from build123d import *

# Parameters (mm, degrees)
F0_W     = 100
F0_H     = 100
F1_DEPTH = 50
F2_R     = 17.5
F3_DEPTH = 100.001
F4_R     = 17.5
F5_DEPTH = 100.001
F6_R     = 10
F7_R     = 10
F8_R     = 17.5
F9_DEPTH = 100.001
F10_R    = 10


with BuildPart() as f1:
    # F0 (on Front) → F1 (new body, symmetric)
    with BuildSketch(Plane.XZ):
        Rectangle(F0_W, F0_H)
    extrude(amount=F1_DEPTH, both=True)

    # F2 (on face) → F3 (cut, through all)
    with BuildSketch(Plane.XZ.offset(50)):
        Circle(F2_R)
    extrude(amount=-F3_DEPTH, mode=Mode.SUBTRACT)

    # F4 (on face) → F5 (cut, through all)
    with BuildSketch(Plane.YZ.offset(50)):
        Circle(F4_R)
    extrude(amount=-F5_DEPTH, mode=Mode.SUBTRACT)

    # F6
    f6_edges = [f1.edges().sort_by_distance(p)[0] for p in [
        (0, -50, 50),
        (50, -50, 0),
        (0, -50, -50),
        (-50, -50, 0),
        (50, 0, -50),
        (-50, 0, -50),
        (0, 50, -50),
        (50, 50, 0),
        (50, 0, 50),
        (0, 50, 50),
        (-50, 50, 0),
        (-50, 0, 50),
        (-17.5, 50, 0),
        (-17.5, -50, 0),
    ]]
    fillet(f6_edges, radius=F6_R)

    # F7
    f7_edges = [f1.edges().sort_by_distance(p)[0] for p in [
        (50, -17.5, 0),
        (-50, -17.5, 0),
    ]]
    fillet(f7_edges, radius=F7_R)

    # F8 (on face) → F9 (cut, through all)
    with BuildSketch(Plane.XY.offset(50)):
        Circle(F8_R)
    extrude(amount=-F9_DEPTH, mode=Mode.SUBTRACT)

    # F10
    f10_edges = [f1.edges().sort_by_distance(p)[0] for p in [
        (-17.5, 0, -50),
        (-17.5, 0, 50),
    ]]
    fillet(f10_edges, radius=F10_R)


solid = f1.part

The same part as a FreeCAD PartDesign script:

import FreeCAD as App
import Part
import Sketcher

V = App.Vector
Q = App.Units.Quantity


def edges_at(feature, points):
    """Names of the edges that pass closest to the given points."""
    edges = feature.Shape.Edges
    near = lambda p: min(range(len(edges)), key=lambda i: edges[i].distToShape(Part.Vertex(*p))[0])
    return sorted({f"Edge{near(p) + 1}" for p in points})


def add_polygon(sketch, points):
    """Adds a closed chain of lines whose ends are joined by coincident constraints."""
    first, n = sketch.GeometryCount, len(points)
    for a, b in zip(points, points[1:] + points[:1]):
        sketch.addGeometry(Part.LineSegment(App.Vector(*a, 0), App.Vector(*b, 0)), False)
    for i in range(n):
        sketch.addConstraint(Sketcher.Constraint("Coincident", first + i, 2, first + (i + 1) % n, 1))

doc = App.newDocument("Part")
body = doc.addObject("PartDesign::Body", "Body")

sketch1 = doc.addObject("Sketcher::SketchObject", "Sketch")
body.addObject(sketch1)
sketch1.AttachmentSupport = (doc.XZ_Plane, [""])
sketch1.MapMode = "FlatFace"
add_polygon(sketch1, [(-50, 50), (-50, -50), (50, -50), (50, 50)])
sketch1.addConstraint(Sketcher.Constraint("Vertical", 0))
sketch1.addConstraint(Sketcher.Constraint("Horizontal", 1))
sketch1.addConstraint(Sketcher.Constraint("Vertical", 2))
sketch1.addConstraint(Sketcher.Constraint("Horizontal", 3))
sketch1.addConstraint(Sketcher.Constraint("Symmetric", 0, 2, 2, 2, -1, 1))
sketch1.addConstraint(Sketcher.Constraint("Equal", 3, 0))
sketch1.addConstraint(Sketcher.Constraint("DistanceX", 1, 1, 1, 2, Q("100 mm")))
pad1 = doc.addObject("PartDesign::Pad", "Pad")
body.addObject(pad1)
pad1.Profile = sketch1
pad1.Length = 100
pad1.Midplane = True

sketch2 = doc.addObject("Sketcher::SketchObject", "Sketch001")
body.addObject(sketch2)
sketch2.AttachmentSupport = (doc.XZ_Plane, [""])
sketch2.MapMode = "FlatFace"
sketch2.AttachmentOffset = App.Placement(V(0, 0, 50), App.Rotation())
sketch2.addGeometry(Part.Circle(V(0, 0, 0), V(0, 0, 1), 18), False)
sketch2.addConstraint(Sketcher.Constraint("Coincident", 0, 3, -1, 1))
sketch2.addConstraint(Sketcher.Constraint("Diameter", 0, Q("35 mm")))
pocket1 = doc.addObject("PartDesign::Pocket", "Pocket")
body.addObject(pocket1)
pocket1.Profile = sketch2
pocket1.Type = "ThroughAll"

sketch3 = doc.addObject("Sketcher::SketchObject", "Sketch002")
body.addObject(sketch3)
sketch3.AttachmentSupport = (doc.YZ_Plane, [""])
sketch3.MapMode = "FlatFace"
sketch3.AttachmentOffset = App.Placement(V(0, 0, 50), App.Rotation())
sketch3.addGeometry(Part.Circle(V(0, 0, 0), V(0, 0, 1), 18), False)
sketch3.addConstraint(Sketcher.Constraint("Coincident", 0, 3, -1, 1))
sketch3.addConstraint(Sketcher.Constraint("Diameter", 0, Q("35 mm")))
pocket2 = doc.addObject("PartDesign::Pocket", "Pocket001")
body.addObject(pocket2)
pocket2.Profile = sketch3
pocket2.Type = "ThroughAll"
doc.recompute()

fillet = doc.addObject("PartDesign::Fillet", "Fillet")
body.addObject(fillet)
fillet.Base = (pocket2, edges_at(pocket2, [
    (0, -50, 50),
    (50, -50, 0),
    (0, -50, -50),
    (-50, -50, 0),
    (50, 0, -50),
    (-50, 0, -50),
    (0, 50, -50),
    (50, 50, 0),
    (50, 0, 50),
    (0, 50, 50),
    (-50, 50, 0),
    (-50, 0, 50),
    (-17.5, 50, 0),
    (-17.5, -50, 0),
]))
fillet.Radius = 10
doc.recompute()

fillet2 = doc.addObject("PartDesign::Fillet", "Fillet001")
body.addObject(fillet2)
fillet2.Base = (fillet, edges_at(fillet, [(50, -17.5, 0), (-50, -17.5, 0)]))
fillet2.Radius = 10

sketch4 = doc.addObject("Sketcher::SketchObject", "Sketch003")
body.addObject(sketch4)
sketch4.AttachmentSupport = (doc.XY_Plane, [""])
sketch4.MapMode = "FlatFace"
sketch4.AttachmentOffset = App.Placement(V(0, 0, 50), App.Rotation())
sketch4.addGeometry(Part.Circle(V(0, 0, 0), V(0, 0, 1), 18), False)
sketch4.addConstraint(Sketcher.Constraint("Coincident", 0, 3, -1, 1))
sketch4.addConstraint(Sketcher.Constraint("Diameter", 0, Q("35 mm")))
pocket3 = doc.addObject("PartDesign::Pocket", "Pocket002")
body.addObject(pocket3)
pocket3.Profile = sketch4
pocket3.Type = "ThroughAll"
doc.recompute()

fillet3 = doc.addObject("PartDesign::Fillet", "Fillet002")
body.addObject(fillet3)
fillet3.Base = (pocket3, edges_at(pocket3, [(-17.5, 0, -50), (-17.5, 0, 50)]))
fillet3.Radius = 10

doc.recompute()
